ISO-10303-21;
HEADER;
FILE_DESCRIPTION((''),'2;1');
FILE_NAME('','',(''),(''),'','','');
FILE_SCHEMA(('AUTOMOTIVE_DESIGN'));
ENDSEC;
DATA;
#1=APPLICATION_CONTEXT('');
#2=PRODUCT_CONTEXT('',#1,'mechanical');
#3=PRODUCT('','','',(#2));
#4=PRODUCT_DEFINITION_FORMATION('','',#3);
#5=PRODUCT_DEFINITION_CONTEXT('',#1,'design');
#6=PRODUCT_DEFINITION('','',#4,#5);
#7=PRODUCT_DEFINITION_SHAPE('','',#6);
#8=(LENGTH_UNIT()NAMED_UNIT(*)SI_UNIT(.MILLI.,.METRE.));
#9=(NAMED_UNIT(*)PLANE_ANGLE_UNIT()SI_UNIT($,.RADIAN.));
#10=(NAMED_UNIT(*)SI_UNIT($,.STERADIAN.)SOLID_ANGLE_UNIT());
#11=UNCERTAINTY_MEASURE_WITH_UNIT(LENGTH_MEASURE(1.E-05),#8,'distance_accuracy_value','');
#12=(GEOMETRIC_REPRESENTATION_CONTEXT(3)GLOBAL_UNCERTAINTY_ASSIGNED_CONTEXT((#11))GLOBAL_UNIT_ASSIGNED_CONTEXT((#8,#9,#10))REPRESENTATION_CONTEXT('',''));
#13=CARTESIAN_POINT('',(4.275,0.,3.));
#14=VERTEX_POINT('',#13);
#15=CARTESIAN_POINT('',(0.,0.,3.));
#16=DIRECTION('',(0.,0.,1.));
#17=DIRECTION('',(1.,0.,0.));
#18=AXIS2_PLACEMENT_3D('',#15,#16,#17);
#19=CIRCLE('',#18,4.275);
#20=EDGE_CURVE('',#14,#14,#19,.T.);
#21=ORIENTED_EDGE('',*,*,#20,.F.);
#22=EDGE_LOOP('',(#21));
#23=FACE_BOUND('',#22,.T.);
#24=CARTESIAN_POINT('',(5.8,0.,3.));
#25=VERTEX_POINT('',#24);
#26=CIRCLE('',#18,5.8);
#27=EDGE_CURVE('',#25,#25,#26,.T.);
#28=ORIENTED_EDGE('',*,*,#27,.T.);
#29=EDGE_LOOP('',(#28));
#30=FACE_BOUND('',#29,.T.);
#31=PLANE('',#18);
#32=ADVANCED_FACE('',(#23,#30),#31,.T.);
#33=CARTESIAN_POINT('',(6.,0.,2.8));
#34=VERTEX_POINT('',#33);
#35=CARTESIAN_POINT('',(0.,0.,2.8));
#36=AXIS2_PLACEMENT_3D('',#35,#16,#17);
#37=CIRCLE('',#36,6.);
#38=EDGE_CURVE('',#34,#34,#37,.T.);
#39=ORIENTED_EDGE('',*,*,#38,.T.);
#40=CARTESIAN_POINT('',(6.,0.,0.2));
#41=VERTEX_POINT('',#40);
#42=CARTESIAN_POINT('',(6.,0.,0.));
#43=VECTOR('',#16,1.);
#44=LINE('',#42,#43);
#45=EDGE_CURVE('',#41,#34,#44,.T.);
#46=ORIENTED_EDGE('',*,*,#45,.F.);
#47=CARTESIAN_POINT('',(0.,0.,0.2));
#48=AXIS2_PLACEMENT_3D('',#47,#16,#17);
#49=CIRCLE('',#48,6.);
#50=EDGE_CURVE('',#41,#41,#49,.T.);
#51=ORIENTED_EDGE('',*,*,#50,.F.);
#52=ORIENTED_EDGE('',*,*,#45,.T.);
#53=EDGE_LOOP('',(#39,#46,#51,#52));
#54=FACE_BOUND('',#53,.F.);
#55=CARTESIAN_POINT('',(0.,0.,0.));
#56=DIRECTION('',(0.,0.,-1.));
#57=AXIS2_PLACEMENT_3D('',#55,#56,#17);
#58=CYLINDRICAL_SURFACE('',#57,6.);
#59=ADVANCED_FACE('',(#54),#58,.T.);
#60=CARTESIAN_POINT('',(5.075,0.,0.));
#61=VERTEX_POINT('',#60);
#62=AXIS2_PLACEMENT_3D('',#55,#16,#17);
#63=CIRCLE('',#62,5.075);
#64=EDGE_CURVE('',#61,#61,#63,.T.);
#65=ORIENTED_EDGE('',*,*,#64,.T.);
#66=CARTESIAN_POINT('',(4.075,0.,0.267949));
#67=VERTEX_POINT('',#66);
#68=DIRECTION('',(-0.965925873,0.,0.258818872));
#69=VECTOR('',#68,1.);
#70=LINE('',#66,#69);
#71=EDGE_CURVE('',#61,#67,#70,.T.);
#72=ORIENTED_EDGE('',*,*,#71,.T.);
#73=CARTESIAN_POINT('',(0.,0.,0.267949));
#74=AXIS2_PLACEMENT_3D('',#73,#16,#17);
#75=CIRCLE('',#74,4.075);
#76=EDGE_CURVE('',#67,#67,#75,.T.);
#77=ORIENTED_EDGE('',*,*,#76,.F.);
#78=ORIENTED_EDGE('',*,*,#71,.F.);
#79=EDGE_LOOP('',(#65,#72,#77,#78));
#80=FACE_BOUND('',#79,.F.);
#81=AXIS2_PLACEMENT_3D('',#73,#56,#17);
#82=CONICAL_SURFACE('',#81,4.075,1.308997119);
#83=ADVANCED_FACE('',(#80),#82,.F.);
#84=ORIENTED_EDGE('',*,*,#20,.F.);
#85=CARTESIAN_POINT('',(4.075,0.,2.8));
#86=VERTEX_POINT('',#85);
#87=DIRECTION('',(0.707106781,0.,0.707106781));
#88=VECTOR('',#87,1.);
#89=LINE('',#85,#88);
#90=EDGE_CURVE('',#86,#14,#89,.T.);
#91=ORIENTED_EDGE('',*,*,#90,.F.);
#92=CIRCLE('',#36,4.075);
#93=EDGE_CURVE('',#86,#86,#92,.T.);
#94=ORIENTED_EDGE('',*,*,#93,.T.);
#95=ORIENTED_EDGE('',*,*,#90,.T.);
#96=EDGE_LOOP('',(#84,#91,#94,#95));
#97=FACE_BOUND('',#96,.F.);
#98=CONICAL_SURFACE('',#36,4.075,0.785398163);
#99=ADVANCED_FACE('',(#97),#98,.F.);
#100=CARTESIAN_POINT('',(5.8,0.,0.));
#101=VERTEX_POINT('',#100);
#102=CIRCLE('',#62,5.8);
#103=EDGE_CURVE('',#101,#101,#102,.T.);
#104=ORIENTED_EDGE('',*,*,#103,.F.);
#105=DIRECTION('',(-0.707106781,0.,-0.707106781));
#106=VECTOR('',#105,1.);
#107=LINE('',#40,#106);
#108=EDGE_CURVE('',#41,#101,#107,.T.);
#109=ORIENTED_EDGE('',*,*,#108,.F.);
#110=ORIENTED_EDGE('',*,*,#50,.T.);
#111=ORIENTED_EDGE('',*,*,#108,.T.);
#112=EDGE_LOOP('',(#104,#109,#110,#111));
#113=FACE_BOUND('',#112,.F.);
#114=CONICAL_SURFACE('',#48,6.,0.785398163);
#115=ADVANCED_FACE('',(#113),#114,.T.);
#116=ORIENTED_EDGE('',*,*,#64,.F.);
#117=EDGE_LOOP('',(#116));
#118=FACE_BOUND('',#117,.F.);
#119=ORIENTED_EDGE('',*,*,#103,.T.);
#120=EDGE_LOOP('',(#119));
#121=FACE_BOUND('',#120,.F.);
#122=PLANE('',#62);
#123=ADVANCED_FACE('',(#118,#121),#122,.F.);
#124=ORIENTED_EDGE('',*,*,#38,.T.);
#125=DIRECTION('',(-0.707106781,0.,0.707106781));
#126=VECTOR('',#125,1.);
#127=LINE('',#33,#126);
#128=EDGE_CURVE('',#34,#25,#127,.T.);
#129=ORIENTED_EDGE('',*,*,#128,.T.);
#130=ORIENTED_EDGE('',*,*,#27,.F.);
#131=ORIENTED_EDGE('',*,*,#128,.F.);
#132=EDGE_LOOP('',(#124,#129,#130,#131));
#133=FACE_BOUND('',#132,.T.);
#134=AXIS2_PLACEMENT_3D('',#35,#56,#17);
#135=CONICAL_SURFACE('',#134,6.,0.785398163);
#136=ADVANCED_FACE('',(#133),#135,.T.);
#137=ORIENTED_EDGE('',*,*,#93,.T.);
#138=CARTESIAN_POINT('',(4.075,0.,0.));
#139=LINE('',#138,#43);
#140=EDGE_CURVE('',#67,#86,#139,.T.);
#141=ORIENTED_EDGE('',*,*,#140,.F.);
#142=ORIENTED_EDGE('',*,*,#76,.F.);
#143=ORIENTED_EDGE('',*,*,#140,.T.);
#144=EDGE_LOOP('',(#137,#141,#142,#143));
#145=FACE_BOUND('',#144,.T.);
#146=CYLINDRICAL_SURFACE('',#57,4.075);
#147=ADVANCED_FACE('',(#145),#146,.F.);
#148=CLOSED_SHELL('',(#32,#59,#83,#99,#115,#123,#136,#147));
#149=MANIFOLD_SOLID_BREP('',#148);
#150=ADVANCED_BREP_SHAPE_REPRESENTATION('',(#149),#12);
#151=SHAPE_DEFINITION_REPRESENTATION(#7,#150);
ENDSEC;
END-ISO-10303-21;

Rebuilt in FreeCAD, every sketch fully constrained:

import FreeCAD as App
import Part
import Sketcher

V = App.Vector
Q = App.Units.Quantity


def edges_at(feature, points):
    """Names of the edges that pass closest to the given points."""
    edges = feature.Shape.Edges
    near = lambda p: min(range(len(edges)), key=lambda i: edges[i].distToShape(Part.Vertex(*p))[0])
    return sorted({f"Edge{near(p) + 1}" for p in points})

doc = App.newDocument("Part")
body = doc.addObject("PartDesign::Body", "Body")

# Sketch on XY plane
sketch1 = doc.addObject("Sketcher::SketchObject", "Sketch")
body.addObject(sketch1)
sketch1.AttachmentSupport = (doc.XY_Plane, [""])
sketch1.MapMode = "FlatFace"
sketch1.addGeometry(Part.Circle(V(0, 0, 0), V(0, 0, 1), 6), False)
sketch1.addGeometry(Part.Circle(V(0, 0, 0), V(0, 0, 1), 4.1), False)
sketch1.addConstraint(Sketcher.Constraint("Coincident", 0, 3, -1, 1))
sketch1.addConstraint(Sketcher.Constraint("Coincident", 1, 3, -1, 1))
sketch1.addConstraint(Sketcher.Constraint("Diameter", 0, Q("12 mm")))
sketch1.addConstraint(Sketcher.Constraint("Diameter", 1, Q("8.15 mm")))
pad1 = doc.addObject("PartDesign::Pad", "Pad")
body.addObject(pad1)
pad1.Profile = sketch1
pad1.Length = 3
doc.recompute()

chamfer = doc.addObject("PartDesign::Chamfer", "Chamfer")
body.addObject(chamfer)
chamfer.Base = (pad1, edges_at(pad1, [(-4.075, 0, 3), (-6, 0, 0), (-6, 0, 3)]))
chamfer.Size = 0.2
doc.recompute()

chamfer2 = doc.addObject("PartDesign::Chamfer", "Chamfer001")
body.addObject(chamfer2)
chamfer2.Base = (chamfer, edges_at(chamfer, [(-4.075, 0, 0)]))
chamfer2.ChamferType = "Two distances"
chamfer2.Size = 1
chamfer2.Size2 = 0.267949

doc.recompute()
